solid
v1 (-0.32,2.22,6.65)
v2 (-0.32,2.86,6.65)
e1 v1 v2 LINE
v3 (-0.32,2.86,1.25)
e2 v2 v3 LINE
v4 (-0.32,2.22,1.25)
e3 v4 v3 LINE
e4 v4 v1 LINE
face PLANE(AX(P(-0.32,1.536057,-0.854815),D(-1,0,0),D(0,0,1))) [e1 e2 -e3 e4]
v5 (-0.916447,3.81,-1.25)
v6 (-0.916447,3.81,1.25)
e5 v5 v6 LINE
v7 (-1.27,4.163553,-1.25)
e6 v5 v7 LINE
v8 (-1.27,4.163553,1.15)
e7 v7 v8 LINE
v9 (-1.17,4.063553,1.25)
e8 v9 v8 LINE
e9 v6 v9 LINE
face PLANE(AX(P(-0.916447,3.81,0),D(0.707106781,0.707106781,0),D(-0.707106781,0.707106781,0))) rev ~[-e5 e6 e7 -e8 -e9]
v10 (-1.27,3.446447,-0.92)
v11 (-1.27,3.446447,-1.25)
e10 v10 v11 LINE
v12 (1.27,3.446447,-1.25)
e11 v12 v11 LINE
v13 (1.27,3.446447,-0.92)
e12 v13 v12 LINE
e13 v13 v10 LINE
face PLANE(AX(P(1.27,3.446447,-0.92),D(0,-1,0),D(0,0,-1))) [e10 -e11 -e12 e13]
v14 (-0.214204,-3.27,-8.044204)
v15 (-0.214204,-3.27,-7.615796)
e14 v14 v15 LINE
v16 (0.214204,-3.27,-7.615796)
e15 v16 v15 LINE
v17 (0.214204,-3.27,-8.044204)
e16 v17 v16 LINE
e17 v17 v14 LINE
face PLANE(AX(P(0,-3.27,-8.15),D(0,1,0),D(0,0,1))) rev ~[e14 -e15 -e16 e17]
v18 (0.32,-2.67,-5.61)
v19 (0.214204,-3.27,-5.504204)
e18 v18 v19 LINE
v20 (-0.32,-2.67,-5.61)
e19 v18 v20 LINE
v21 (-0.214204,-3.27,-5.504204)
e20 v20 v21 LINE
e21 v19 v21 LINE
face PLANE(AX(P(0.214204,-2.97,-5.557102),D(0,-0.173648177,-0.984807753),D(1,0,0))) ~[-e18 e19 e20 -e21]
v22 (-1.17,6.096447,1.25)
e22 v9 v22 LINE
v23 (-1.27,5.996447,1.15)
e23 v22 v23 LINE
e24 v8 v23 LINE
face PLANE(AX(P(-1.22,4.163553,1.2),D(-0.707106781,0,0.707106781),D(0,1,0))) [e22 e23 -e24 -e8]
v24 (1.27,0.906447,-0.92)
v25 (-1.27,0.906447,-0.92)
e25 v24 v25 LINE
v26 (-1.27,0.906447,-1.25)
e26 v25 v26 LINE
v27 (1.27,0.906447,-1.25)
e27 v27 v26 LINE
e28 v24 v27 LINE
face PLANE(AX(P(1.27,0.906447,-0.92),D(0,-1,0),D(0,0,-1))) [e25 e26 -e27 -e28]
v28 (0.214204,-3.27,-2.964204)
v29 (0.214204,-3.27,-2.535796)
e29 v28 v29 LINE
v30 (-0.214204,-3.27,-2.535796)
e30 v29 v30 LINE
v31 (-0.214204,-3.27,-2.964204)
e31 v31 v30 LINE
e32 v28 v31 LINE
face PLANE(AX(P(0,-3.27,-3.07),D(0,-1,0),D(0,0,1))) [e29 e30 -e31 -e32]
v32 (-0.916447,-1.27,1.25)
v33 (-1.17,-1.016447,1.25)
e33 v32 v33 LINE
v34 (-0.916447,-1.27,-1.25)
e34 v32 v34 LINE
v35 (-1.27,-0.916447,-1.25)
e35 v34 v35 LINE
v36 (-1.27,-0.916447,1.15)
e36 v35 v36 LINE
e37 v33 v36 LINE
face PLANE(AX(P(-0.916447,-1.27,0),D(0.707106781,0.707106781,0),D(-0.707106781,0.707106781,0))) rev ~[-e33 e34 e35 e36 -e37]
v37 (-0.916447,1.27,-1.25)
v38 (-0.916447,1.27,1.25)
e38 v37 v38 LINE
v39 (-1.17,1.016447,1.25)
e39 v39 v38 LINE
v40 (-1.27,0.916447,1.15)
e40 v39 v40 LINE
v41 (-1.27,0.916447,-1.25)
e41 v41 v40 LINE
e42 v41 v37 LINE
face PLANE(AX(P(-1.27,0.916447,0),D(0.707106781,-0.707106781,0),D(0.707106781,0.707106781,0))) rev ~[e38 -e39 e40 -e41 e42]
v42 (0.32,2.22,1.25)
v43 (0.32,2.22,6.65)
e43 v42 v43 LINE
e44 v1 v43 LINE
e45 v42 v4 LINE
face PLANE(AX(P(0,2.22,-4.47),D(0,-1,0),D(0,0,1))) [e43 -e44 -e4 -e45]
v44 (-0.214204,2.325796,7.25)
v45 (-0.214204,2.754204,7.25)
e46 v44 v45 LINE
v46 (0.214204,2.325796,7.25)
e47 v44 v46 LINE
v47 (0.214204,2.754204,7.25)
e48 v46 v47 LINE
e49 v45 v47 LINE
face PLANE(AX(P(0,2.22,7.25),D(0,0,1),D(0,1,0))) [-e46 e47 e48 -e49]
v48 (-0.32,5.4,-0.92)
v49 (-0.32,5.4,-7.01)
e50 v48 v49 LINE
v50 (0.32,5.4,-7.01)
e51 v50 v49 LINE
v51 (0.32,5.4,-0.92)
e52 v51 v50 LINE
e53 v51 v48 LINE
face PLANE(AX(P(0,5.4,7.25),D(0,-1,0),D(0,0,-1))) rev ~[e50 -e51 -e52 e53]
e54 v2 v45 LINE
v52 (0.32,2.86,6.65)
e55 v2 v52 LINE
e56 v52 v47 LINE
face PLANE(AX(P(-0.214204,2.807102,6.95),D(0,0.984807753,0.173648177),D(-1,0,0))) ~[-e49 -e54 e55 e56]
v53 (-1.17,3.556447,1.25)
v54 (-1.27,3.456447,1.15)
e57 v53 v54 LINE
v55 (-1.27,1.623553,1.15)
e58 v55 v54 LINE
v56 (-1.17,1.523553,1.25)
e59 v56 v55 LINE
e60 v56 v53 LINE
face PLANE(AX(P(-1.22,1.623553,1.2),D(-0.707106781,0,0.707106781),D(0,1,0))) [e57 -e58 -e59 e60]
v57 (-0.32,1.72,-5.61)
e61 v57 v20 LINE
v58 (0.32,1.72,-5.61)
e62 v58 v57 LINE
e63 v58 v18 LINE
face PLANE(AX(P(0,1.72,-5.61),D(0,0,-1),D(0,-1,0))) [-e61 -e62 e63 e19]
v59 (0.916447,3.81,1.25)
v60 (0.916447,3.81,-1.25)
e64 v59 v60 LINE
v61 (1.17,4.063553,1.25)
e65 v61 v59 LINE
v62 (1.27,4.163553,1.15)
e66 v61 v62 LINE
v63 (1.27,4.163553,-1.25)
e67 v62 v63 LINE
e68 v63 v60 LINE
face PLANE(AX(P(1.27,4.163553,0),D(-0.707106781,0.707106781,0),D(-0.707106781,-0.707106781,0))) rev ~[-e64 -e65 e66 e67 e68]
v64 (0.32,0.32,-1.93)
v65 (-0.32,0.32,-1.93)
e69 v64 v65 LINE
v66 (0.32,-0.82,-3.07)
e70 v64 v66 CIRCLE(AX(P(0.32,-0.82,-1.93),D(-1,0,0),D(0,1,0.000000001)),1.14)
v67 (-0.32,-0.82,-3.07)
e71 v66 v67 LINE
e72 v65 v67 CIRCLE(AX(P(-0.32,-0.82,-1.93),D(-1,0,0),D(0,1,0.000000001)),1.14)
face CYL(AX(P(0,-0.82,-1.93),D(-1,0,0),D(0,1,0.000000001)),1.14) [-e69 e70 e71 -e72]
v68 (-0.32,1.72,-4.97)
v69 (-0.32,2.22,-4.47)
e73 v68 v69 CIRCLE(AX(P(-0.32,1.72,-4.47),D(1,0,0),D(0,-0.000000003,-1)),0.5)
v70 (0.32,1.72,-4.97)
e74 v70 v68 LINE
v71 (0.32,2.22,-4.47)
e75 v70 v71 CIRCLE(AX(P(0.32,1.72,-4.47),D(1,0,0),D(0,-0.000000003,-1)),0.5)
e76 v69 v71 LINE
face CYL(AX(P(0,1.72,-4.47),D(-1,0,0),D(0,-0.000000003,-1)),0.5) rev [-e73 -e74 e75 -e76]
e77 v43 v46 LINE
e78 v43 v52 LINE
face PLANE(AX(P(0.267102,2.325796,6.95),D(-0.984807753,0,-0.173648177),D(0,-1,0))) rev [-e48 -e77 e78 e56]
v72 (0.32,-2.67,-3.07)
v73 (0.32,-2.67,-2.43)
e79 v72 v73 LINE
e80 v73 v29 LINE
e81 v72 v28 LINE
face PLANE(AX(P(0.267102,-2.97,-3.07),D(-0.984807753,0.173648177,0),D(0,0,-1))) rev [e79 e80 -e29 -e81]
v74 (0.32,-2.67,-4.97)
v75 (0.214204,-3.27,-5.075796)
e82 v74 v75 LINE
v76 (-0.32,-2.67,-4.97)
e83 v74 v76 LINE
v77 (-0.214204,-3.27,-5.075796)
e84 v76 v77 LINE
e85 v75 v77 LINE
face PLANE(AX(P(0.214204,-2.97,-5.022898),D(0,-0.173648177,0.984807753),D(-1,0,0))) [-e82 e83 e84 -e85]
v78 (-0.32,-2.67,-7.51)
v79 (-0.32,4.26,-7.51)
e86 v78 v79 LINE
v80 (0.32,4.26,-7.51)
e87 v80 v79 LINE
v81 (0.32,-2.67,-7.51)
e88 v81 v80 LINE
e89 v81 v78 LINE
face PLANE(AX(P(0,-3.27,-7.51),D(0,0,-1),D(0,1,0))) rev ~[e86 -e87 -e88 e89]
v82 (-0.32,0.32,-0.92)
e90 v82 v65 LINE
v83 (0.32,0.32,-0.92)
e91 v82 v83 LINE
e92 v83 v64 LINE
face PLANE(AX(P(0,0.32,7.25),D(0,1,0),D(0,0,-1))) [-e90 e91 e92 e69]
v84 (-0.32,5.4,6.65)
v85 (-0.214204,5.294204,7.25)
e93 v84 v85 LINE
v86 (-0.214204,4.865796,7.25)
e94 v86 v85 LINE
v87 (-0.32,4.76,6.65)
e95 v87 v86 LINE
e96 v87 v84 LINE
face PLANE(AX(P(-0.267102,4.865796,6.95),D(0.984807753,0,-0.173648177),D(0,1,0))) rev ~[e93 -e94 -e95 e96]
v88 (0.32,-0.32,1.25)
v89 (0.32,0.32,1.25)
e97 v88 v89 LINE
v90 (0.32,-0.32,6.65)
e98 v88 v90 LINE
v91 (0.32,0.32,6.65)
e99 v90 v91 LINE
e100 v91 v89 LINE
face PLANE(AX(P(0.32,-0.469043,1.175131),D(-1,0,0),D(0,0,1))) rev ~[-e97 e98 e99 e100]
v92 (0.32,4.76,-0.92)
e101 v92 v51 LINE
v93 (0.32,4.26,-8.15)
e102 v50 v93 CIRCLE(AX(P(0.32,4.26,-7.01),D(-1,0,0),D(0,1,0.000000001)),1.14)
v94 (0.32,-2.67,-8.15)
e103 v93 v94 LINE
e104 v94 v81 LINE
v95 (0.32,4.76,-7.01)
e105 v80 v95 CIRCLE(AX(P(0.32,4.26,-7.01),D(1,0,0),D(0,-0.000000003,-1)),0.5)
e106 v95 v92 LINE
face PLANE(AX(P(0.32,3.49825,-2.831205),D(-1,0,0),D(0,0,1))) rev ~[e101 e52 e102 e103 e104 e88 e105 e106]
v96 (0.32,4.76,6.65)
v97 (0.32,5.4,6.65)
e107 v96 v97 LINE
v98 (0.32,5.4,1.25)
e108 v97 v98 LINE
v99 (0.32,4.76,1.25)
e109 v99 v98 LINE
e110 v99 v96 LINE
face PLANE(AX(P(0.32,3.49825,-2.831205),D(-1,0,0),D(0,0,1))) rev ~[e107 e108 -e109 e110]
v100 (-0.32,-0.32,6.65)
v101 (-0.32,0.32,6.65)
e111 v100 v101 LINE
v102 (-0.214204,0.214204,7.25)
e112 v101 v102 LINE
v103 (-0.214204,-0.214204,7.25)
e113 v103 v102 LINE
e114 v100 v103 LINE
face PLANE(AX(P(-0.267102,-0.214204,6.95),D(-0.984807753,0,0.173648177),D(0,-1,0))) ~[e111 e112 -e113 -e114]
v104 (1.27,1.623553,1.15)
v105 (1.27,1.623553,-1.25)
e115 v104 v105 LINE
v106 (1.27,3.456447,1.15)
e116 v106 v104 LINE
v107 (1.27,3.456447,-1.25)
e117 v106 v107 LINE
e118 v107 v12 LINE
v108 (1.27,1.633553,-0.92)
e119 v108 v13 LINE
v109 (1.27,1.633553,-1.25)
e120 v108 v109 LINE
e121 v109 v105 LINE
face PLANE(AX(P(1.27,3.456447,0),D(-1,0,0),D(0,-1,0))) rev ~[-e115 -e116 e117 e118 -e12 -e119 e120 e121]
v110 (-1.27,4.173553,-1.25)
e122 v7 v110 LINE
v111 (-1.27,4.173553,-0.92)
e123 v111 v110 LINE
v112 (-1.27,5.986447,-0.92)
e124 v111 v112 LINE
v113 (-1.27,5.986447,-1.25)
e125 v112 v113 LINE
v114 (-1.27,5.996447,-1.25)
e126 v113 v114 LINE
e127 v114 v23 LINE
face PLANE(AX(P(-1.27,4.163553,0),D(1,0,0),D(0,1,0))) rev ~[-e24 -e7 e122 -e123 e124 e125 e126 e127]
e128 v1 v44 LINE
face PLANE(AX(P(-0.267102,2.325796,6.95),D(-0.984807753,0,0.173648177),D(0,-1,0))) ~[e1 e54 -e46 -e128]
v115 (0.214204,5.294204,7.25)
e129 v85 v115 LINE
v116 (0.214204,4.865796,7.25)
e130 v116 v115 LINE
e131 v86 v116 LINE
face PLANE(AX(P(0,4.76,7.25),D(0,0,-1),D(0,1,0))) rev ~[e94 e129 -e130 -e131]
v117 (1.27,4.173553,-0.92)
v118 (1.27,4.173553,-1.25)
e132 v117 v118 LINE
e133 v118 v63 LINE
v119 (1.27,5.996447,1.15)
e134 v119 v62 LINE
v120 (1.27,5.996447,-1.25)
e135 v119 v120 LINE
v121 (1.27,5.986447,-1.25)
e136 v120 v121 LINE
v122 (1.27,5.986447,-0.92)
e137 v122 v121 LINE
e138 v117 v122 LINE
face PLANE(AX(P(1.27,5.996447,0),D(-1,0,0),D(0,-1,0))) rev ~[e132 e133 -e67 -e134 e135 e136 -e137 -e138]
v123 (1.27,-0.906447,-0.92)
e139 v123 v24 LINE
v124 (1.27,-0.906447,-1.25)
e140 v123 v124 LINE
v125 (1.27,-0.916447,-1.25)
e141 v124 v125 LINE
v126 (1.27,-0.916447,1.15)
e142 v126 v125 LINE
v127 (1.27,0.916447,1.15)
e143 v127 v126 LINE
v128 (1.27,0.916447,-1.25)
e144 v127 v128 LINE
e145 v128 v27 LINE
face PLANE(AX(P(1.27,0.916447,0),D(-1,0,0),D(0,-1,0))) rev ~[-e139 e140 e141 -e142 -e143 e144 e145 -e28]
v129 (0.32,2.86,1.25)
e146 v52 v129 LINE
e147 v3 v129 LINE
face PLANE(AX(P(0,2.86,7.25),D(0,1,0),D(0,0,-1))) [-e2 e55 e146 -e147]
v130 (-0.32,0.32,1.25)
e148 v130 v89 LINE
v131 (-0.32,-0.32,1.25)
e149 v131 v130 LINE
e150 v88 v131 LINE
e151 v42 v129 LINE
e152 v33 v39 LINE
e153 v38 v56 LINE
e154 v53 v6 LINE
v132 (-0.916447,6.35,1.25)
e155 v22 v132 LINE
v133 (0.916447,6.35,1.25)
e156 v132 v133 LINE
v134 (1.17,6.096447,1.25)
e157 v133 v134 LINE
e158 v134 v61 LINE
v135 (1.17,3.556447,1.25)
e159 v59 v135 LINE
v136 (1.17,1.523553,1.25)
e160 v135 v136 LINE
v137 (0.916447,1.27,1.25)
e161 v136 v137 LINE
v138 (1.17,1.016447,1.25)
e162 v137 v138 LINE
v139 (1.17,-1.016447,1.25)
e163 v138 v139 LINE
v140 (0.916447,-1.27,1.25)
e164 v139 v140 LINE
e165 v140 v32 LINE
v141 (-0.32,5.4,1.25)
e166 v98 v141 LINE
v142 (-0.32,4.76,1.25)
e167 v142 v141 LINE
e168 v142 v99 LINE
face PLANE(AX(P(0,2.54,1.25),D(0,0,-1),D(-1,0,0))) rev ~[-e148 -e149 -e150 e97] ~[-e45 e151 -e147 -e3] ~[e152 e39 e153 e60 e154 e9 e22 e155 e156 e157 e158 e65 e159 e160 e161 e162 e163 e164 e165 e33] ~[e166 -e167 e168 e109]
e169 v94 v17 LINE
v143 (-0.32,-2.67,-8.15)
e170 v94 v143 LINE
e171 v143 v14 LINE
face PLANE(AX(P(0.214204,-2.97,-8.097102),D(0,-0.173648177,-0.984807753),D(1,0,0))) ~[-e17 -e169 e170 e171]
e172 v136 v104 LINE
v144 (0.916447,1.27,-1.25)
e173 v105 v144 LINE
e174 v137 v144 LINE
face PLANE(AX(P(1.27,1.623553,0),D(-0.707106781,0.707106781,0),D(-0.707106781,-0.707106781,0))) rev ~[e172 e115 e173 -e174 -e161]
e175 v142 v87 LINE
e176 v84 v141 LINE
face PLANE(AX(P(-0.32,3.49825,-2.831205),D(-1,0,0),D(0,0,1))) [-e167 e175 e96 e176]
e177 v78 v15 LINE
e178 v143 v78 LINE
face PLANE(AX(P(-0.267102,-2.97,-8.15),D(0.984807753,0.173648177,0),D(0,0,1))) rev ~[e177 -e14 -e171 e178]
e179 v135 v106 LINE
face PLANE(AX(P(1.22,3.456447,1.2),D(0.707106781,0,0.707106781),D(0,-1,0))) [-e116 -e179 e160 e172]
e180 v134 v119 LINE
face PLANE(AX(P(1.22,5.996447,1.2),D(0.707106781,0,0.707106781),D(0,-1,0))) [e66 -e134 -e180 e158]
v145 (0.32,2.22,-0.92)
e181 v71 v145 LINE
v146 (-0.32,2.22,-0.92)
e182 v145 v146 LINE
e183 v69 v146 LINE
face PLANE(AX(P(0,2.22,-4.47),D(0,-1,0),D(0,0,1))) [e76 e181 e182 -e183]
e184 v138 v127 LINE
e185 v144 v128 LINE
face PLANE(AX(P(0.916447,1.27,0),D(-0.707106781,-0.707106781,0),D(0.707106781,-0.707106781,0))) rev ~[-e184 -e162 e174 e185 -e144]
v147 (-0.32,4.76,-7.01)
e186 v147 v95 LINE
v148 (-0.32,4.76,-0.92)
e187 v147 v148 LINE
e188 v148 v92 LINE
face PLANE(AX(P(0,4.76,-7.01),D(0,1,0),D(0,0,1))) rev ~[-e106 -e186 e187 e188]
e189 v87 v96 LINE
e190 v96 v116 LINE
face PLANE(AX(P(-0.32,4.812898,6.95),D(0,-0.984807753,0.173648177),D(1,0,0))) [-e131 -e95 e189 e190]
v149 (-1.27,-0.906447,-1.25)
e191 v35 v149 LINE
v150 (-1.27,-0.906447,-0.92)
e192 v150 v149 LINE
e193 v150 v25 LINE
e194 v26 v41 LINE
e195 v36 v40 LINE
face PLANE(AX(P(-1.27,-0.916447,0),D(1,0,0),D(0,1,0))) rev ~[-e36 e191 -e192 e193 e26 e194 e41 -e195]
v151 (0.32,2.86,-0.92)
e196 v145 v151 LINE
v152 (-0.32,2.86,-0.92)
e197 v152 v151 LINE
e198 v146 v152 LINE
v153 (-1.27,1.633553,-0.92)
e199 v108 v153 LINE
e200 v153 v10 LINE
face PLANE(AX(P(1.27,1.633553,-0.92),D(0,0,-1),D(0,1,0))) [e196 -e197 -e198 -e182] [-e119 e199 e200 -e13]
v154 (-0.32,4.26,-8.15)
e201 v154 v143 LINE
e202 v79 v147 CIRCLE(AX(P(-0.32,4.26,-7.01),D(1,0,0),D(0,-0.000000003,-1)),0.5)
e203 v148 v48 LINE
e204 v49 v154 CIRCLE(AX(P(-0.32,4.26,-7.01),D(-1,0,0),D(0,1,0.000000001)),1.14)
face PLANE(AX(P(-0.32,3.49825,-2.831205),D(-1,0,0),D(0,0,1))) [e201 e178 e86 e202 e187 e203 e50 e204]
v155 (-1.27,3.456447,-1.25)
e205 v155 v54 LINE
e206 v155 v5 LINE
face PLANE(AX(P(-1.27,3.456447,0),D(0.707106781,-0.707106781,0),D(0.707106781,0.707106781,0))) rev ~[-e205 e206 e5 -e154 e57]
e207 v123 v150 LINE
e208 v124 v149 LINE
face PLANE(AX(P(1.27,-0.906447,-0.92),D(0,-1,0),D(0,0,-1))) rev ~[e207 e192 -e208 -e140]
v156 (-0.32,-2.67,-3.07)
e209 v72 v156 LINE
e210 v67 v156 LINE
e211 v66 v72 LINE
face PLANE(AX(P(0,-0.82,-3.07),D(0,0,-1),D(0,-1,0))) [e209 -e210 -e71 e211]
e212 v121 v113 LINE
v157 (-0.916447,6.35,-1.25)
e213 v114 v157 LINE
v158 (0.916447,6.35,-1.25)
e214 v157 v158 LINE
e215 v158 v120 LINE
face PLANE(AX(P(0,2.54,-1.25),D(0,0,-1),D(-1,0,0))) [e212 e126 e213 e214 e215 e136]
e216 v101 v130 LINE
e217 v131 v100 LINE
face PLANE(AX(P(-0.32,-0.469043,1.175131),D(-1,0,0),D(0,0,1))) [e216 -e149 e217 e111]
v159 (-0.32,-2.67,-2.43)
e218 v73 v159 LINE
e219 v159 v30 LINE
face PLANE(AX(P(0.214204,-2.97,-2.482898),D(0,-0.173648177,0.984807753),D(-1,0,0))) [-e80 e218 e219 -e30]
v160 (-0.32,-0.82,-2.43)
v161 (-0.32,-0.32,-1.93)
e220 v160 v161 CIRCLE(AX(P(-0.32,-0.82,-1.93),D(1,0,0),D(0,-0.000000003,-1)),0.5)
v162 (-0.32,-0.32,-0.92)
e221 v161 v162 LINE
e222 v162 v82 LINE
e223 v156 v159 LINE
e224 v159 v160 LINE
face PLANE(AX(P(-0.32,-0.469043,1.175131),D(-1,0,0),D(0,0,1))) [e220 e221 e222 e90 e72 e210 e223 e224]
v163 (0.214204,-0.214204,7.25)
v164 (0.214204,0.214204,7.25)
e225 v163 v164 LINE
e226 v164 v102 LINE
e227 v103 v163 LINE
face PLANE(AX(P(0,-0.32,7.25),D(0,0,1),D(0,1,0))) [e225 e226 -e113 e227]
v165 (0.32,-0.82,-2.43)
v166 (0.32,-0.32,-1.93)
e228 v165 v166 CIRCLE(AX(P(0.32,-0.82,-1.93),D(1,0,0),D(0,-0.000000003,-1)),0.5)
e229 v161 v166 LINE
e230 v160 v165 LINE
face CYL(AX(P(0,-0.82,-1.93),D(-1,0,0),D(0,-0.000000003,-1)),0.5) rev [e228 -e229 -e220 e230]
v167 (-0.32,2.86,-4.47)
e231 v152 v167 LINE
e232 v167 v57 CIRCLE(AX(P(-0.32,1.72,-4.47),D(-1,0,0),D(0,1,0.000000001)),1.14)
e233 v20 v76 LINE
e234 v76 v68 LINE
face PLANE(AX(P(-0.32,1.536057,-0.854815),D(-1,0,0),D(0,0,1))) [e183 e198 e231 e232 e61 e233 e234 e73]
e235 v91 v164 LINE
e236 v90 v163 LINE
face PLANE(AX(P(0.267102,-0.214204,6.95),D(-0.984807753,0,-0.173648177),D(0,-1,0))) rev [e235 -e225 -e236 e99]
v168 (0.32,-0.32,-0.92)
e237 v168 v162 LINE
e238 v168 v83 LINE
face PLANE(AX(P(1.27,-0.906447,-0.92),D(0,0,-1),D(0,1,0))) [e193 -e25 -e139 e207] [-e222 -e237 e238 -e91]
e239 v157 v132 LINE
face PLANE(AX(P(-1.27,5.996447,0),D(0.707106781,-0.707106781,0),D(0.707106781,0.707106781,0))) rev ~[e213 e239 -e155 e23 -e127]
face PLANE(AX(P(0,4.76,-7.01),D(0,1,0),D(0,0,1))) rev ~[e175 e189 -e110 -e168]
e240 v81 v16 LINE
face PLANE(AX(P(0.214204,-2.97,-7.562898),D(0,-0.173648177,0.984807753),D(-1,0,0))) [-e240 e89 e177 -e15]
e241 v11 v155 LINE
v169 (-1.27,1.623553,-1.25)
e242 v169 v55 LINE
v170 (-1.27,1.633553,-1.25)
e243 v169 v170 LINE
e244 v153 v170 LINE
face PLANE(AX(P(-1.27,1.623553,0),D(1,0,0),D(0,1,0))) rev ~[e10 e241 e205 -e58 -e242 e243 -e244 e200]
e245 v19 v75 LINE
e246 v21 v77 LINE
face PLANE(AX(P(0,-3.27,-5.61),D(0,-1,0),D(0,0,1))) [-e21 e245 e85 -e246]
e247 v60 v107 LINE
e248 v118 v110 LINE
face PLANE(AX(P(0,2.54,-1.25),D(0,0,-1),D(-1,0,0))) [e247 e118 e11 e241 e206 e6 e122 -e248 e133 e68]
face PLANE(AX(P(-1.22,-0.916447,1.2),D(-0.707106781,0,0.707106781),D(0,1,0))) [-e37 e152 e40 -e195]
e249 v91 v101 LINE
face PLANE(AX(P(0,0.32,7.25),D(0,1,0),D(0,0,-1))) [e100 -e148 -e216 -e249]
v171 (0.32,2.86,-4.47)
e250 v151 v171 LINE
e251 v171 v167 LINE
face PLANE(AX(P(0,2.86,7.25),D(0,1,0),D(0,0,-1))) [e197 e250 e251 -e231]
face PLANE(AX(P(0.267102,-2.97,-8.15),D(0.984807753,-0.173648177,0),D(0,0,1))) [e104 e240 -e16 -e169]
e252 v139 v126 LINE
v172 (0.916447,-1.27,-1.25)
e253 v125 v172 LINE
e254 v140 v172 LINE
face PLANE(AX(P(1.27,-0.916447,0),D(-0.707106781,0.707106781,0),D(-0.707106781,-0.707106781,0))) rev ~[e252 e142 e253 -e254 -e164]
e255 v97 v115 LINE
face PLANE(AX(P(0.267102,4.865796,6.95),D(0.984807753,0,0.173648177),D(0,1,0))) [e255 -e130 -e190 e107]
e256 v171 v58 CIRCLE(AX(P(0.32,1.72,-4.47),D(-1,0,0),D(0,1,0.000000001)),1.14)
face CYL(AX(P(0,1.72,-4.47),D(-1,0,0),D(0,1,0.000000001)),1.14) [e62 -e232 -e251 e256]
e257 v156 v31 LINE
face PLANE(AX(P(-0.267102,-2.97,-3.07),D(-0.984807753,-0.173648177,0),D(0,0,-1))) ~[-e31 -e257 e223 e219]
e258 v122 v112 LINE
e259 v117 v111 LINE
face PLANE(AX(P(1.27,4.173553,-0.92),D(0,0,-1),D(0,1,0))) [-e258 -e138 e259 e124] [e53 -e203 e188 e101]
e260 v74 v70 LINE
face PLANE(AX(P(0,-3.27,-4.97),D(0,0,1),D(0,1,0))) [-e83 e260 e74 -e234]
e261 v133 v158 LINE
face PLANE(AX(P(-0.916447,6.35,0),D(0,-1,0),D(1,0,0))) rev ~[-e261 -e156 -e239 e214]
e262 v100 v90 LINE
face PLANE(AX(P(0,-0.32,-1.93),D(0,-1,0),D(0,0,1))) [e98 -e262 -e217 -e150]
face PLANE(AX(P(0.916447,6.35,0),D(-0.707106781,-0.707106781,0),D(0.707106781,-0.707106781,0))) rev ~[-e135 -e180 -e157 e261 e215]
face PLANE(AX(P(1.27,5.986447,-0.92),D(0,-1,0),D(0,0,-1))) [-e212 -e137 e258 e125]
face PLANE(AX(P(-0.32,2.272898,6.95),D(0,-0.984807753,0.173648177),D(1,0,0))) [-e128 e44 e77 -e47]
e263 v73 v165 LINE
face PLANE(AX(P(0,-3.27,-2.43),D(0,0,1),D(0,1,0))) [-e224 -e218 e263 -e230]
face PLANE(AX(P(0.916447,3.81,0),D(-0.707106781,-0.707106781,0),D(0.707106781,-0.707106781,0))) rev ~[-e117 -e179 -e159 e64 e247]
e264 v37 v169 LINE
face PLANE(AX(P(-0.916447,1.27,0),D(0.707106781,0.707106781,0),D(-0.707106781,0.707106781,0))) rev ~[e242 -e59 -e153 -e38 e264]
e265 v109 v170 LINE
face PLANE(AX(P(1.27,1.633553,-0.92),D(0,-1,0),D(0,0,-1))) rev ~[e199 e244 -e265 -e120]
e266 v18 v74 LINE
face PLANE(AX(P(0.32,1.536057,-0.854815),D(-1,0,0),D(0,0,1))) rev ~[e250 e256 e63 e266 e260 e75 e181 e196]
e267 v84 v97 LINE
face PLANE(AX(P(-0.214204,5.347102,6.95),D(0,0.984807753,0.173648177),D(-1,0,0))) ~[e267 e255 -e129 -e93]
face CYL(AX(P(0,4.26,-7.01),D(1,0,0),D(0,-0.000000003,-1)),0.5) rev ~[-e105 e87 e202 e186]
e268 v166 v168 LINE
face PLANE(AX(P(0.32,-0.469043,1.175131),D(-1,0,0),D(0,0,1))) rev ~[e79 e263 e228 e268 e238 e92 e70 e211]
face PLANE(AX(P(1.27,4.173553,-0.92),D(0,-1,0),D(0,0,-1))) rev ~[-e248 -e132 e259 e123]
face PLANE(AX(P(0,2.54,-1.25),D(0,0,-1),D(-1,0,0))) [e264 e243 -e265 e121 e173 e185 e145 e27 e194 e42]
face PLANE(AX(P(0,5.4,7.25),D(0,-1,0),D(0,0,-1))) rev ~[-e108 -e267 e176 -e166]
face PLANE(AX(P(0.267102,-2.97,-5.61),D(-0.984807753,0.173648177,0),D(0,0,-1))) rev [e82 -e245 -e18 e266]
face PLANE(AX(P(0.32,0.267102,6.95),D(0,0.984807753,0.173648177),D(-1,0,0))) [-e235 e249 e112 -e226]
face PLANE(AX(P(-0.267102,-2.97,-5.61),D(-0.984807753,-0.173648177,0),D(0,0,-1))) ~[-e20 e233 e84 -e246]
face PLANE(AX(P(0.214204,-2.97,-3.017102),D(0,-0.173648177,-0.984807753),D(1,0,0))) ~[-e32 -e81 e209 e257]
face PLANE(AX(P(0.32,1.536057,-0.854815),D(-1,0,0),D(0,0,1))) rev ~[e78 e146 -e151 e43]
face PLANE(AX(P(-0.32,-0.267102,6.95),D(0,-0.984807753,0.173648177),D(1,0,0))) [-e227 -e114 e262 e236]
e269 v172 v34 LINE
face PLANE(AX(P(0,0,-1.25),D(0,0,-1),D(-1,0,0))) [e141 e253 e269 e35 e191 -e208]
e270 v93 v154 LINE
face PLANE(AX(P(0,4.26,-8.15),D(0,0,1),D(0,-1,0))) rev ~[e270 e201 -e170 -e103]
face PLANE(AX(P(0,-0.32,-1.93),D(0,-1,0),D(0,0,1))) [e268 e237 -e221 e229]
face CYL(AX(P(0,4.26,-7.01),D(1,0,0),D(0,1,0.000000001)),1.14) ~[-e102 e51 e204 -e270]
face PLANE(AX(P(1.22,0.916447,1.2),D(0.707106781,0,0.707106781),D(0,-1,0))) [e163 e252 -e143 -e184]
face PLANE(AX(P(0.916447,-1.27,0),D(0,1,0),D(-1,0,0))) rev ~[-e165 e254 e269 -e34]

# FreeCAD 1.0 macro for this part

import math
import FreeCAD as App
import Part
import Sketcher
Q = App.Units.Quantity


def edges_at(feature, points):
    """Names of the edges that pass closest to the given points."""
    edges = feature.Shape.Edges
    near = lambda p: min(range(len(edges)), key=lambda i: edges[i].distToShape(Part.Vertex(*p))[0])
    return sorted({f"Edge{near(p) + 1}" for p in points})

doc = App.newDocument("Part")
params = doc.addObject("Spreadsheet::Sheet", "Params")
for row, (alias, value) in enumerate([
    ("sketch1_length", "0.5 mm"),
    ("pad1_length", "2.5 mm"),
    ("sketch2_height", "0.33 mm"),
    ("chamfer_size", "0.1 mm"),
    ("linearpattern_pitch", "2.54 mm"),
    ("chamfer2_size", "0.1 mm"),
    ("sketch3_radius", "0.5 mm"),
    ("sketch3_radius2", "1.14 mm"),
    ("sketch3_width", "2.45 mm"),
    ("sketch3_width2", "4.99 mm"),
    ("sketch3_width3", "7.53 mm"),
    ("pad2_length", "0.64 mm"),
    ("chamfer3_size", "0.6 mm"),
    ("chamfer3_size2", "0.105796 mm"),
    ("chamfer4_size", "0.6 mm"),
    ("chamfer4_size2", "0.105796 mm"),
    ("chamfer5_size", "0.6 mm"),
    ("chamfer5_size2", "0.105796 mm"),
    ("chamfer6_size", "0.6 mm"),
    ("chamfer6_size2", "0.105796 mm"),
    ("chamfer7_size", "0.6 mm"),
    ("chamfer7_size2", "0.105796 mm"),
    ("chamfer8_size", "0.6 mm"),
    ("chamfer8_size2", "0.105796 mm"),
    ("chamfer9_size", "0.6 mm"),
    ("chamfer9_size2", "0.105796 mm"),
    ("chamfer10_size", "0.6 mm"),
    ("chamfer10_size2", "0.105796 mm"),
    ("chamfer11_size", "0.6 mm"),
    ("chamfer11_size2", "0.105796 mm"),
    ("chamfer12_size", "0.6 mm"),
    ("chamfer12_size2", "0.105796 mm"),
    ("chamfer13_size", "0.6 mm"),
    ("chamfer13_size2", "0.105796 mm"),
    ("chamfer14_size", "0.6 mm"),
    ("chamfer14_size2", "0.105796 mm"),
    ("chamfer15_size", "0.6 mm"),
    ("chamfer15_size2", "0.105796 mm"),
    ("chamfer16_size", "0.6 mm"),
    ("chamfer16_size2", "0.105796 mm"),
    ("chamfer17_size", "0.6 mm"),
    ("chamfer17_size2", "0.105796 mm"),
    ("chamfer18_size", "0.6 mm"),
    ("chamfer18_size2", "0.105796 mm"),
    ("chamfer19_size", "0.6 mm"),
    ("chamfer19_size2", "0.105796 mm"),
    ("chamfer20_size", "0.6 mm"),
    ("chamfer20_size2", "0.105796 mm"),
    ("chamfer21_size", "0.6 mm"),
    ("chamfer21_size2", "0.105796 mm"),
    ("chamfer22_size", "0.6 mm"),
    ("chamfer22_size2", "0.105796 mm"),
    ("chamfer23_size", "0.6 mm"),
    ("chamfer23_size2", "0.105796 mm"),
    ("chamfer24_size", "0.6 mm"),
    ("chamfer24_size2", "0.105796 mm"),
    ("chamfer25_size", "0.6 mm"),
    ("chamfer25_size2", "0.105796 mm"),
    ("chamfer26_size", "0.6 mm"),
    ("chamfer26_size2", "0.105796 mm"),
], start=1):
    params.set(f"A{row}", alias)
    params.set(f"B{row}", "=" + value)
    params.setAlias(f"B{row}", alias)

body = doc.addObject("PartDesign::Body", "Body")

# Sketch on XY plane
sketch1 = doc.addObject("Sketcher::SketchObject", "Sketch")
body.addObject(sketch1)
sketch1.AttachmentSupport = (doc.XY_Plane, [""])
sketch1.MapMode = "FlatFace"
sketch1.addGeometry(Part.LineSegment(App.Vector(0.9, 1.3, 0), App.Vector(-0.9, 1.3, 0)), False)
sketch1.addGeometry(Part.LineSegment(App.Vector(-0.9, 1.3, 0), App.Vector(-1.3, 0.9, 0)), False)
sketch1.addGeometry(Part.LineSegment(App.Vector(-1.3, 0.9, 0), App.Vector(-1.3, -0.9, 0)), False)
sketch1.addGeometry(Part.LineSegment(App.Vector(-1.3, -0.9, 0), App.Vector(-0.9, -1.3, 0)), False)
sketch1.addGeometry(Part.LineSegment(App.Vector(-0.9, -1.3, 0), App.Vector(0.9, -1.3, 0)), False)
sketch1.addGeometry(Part.LineSegment(App.Vector(0.9, -1.3, 0), App.Vector(1.3, -0.9, 0)), False)
sketch1.addGeometry(Part.LineSegment(App.Vector(1.3, -0.9, 0), App.Vector(1.3, 0.9, 0)), False)
sketch1.addGeometry(Part.LineSegment(App.Vector(1.3, 0.9, 0), App.Vector(0.9, 1.3, 0)), False)
sketch1.addConstraint(Sketcher.Constraint("Coincident", 0, 2, 1, 1))
sketch1.addConstraint(Sketcher.Constraint("Coincident", 1, 2, 2, 1))
sketch1.addConstraint(Sketcher.Constraint("Coincident", 2, 2, 3, 1))
sketch1.addConstraint(Sketcher.Constraint("Coincident", 3, 2, 4, 1))
sketch1.addConstraint(Sketcher.Constraint("Coincident", 4, 2, 5, 1))
sketch1.addConstraint(Sketcher.Constraint("Coincident", 5, 2, 6, 1))
sketch1.addConstraint(Sketcher.Constraint("Coincident", 6, 2, 7, 1))
sketch1.addConstraint(Sketcher.Constraint("Coincident", 7, 2, 0, 1))
sketch1.addConstraint(Sketcher.Constraint("Horizontal", 0))
sketch1.addConstraint(Sketcher.Constraint("Vertical", 2))
sketch1.addConstraint(Sketcher.Constraint("Horizontal", 4))
sketch1.addConstraint(Sketcher.Constraint("Vertical", 6))
sketch1.addConstraint(Sketcher.Constraint("Symmetric", 0, 2, 4, 2, -1, 1))
sketch1.addConstraint(Sketcher.Constraint("Symmetric", 1, 2, 5, 2, -1, 1))
sketch1.addConstraint(Sketcher.Constraint("Perpendicular", 1, 3))
sketch1.addConstraint(Sketcher.Constraint("Perpendicular", 5, 7))
sketch1.addConstraint(Sketcher.Constraint("Horizontal", 2, 2, 5, 2))
sketch1.addConstraint(Sketcher.Constraint("Horizontal", 1, 2, 6, 2))
sketch1.addConstraint(Sketcher.Constraint("Vertical", 0, 2, 3, 2))
sketch1.addConstraint(Sketcher.Constraint("Equal", 4, 2))
sketch1.addConstraint(Sketcher.Constraint("Distance", 1, Q("0.5 mm")))
sketch1.addConstraint(Sketcher.Constraint("DistanceY", -1, 1, 0, 2, Q("1.27 mm")))
sketch1.setExpression("Constraints[20]", "Params.sketch1_length")
pad1 = doc.addObject("PartDesign::Pad", "Pad")
body.addObject(pad1)
pad1.Profile = sketch1
pad1.setExpression("Length", "Params.pad1_length")
pad1.Midplane = True

# Sketch on YZ plane
sketch2 = doc.addObject("Sketcher::SketchObject", "Sketch001")
body.addObject(sketch2)
sketch2.AttachmentSupport = (doc.YZ_Plane, [""])
sketch2.MapMode = "FlatFace"
sketch2.AttachmentOffset = App.Placement(App.Vector(0, 0, 1.27), App.Rotation())
sketch2.addGeometry(Part.LineSegment(App.Vector(0.91, -0.92, 0), App.Vector(-0.91, -0.92, 0)), False)
sketch2.addGeometry(Part.LineSegment(App.Vector(-0.91, -0.92, 0), App.Vector(-0.91, -1.25, 0)), False)
sketch2.addGeometry(Part.LineSegment(App.Vector(-0.91, -1.25, 0), App.Vector(0.91, -1.25, 0)), False)
sketch2.addGeometry(Part.LineSegment(App.Vector(0.91, -1.25, 0), App.Vector(0.91, -0.92, 0)), False)
sketch2.addConstraint(Sketcher.Constraint("Coincident", 0, 2, 1, 1))
sketch2.addConstraint(Sketcher.Constraint("Coincident", 1, 2, 2, 1))
sketch2.addConstraint(Sketcher.Constraint("Coincident", 2, 2, 3, 1))
sketch2.addConstraint(Sketcher.Constraint("Coincident", 3, 2, 0, 1))
sketch2.addConstraint(Sketcher.Constraint("Horizontal", 0))
sketch2.addConstraint(Sketcher.Constraint("Vertical", 1))
sketch2.addConstraint(Sketcher.Constraint("Horizontal", 2))
sketch2.addConstraint(Sketcher.Constraint("Vertical", 3))
sketch2.addConstraint(Sketcher.Constraint("DistanceY", 1, 2, 1, 1, Q("0.33 mm")))
sketch2.addConstraint(Sketcher.Constraint("DistanceY", 0, 2, -1, 1, Q("0.92 mm")))
sketch2.addConstraint(Sketcher.Constraint("DistanceX", 0, 2, 0, 1, Q("1.812893 mm")))
sketch2.addConstraint(Sketcher.Constraint("DistanceX", 0, 2, -1, 1, Q("0.906447 mm")))
sketch2.setExpression("Constraints[8]", "Params.sketch2_height")
pocket1 = doc.addObject("PartDesign::Pocket", "Pocket")
body.addObject(pocket1)
pocket1.Profile = sketch2
pocket1.Type = "ThroughAll"
doc.recompute()

chamfer = doc.addObject("PartDesign::Chamfer", "Chamfer")
body.addObject(chamfer)
chamfer.Base = (pocket1, edges_at(pocket1, [(1.27, 0, 1.25), (-1.27, 0, 1.25)]))
chamfer.setExpression("Size", "Params.chamfer_size")
doc.recompute()

linearpattern = doc.addObject("PartDesign::LinearPattern", "LinearPattern")
body.addObject(linearpattern)
linearpattern.Originals = [pad1, pocket1]
linearpattern.Direction = (doc.Y_Axis, [""])
linearpattern.Mode = "offset"
linearpattern.setExpression("Offset", "Params.linearpattern_pitch")
linearpattern.Occurrences = 3
body.Tip = linearpattern
doc.recompute()

chamfer2 = doc.addObject("PartDesign::Chamfer", "Chamfer001")
body.addObject(chamfer2)
chamfer2.Base = (linearpattern, edges_at(linearpattern, [
    (1.27, 2.54, 1.25),
    (-1.27, 2.54, 1.25),
    (1.27, 5.08, 1.25),
    (-1.27, 5.08, 1.25),
]))
chamfer2.setExpression("Size", "Params.chamfer2_size")

# Sketch on YZ plane
sketch3 = doc.addObject("Sketcher::SketchObject", "Sketch002")
body.addObject(sketch3)
sketch3.AttachmentSupport = (doc.YZ_Plane, [""])
sketch3.MapMode = "FlatFace"
sketch3.addGeometry(Part.LineSegment(App.Vector(0.32, 7.25, 0), App.Vector(-0.32, 7.25, 0)), False)
sketch3.addGeometry(Part.LineSegment(App.Vector(-0.32, 7.25, 0), App.Vector(-0.32, -1.93, 0)), False)
sketch3.addGeometry(Part.ArcOfCircle(Part.Circle(App.Vector(-0.82, -1.93, 0), App.Vector(0, 0, 1), 0.5), math.radians(-90), math.radians(0)), False)
sketch3.addGeometry(Part.LineSegment(App.Vector(-0.82, -2.43, 0), App.Vector(-3.27, -2.43, 0)), False)
sketch3.addGeometry(Part.LineSegment(App.Vector(-3.27, -2.43, 0), App.Vector(-3.27, -3.07, 0)), False)
sketch3.addGeometry(Part.LineSegment(App.Vector(-3.27, -3.07, 0), App.Vector(-0.82, -3.07, 0)), False)
sketch3.addGeometry(Part.ArcOfCircle(Part.Circle(App.Vector(-0.82, -1.93, 0), App.Vector(0, 0, 1), 1.14), math.radians(-90), math.radians(0)), False)
sketch3.addGeometry(Part.LineSegment(App.Vector(0.32, -1.93, 0), App.Vector(0.32, 7.25, 0)), False)
sketch3.addGeometry(Part.LineSegment(App.Vector(2.86, -4.47, 0), App.Vector(2.86, 7.25, 0)), False)
sketch3.addGeometry(Part.LineSegment(App.Vector(2.86, 7.25, 0), App.Vector(2.22, 7.25, 0)), False)
sketch3.addGeometry(Part.LineSegment(App.Vector(2.22, 7.25, 0), App.Vector(2.22, -4.47, 0)), False)
sketch3.addGeometry(Part.ArcOfCircle(Part.Circle(App.Vector(1.72, -4.47, 0), App.Vector(0, 0, 1), 0.5), math.radians(-90), math.radians(0)), False)
sketch3.addGeometry(Part.LineSegment(App.Vector(1.72, -4.97, 0), App.Vector(-3.27, -4.97, 0)), False)
sketch3.addGeometry(Part.LineSegment(App.Vector(-3.27, -4.97, 0), App.Vector(-3.27, -5.61, 0)), False)
sketch3.addGeometry(Part.LineSegment(App.Vector(-3.27, -5.61, 0), App.Vector(1.72, -5.61, 0)), False)
sketch3.addGeometry(Part.ArcOfCircle(Part.Circle(App.Vector(1.72, -4.47, 0), App.Vector(0, 0, 1), 1.14), math.radians(-90), math.radians(0)), False)
sketch3.addGeometry(Part.LineSegment(App.Vector(5.4, -7.01, 0), App.Vector(5.4, 7.25, 0)), False)
sketch3.addGeometry(Part.LineSegment(App.Vector(5.4, 7.25, 0), App.Vector(4.76, 7.25, 0)), False)
sketch3.addGeometry(Part.LineSegment(App.Vector(4.76, 7.25, 0), App.Vector(4.76, -7.01, 0)), False)
sketch3.addGeometry(Part.ArcOfCircle(Part.Circle(App.Vector(4.26, -7.01, 0), App.Vector(0, 0, 1), 0.5), math.radians(-90), math.radians(0)), False)
sketch3.addGeometry(Part.LineSegment(App.Vector(4.26, -7.51, 0), App.Vector(-3.27, -7.51, 0)), False)
sketch3.addGeometry(Part.LineSegment(App.Vector(-3.27, -7.51, 0), App.Vector(-3.27, -8.15, 0)), False)
sketch3.addGeometry(Part.LineSegment(App.Vector(-3.27, -8.15, 0), App.Vector(4.26, -8.15, 0)), False)
sketch3.addGeometry(Part.ArcOfCircle(Part.Circle(App.Vector(4.26, -7.01, 0), App.Vector(0, 0, 1), 1.14), math.radians(-90), math.radians(0)), False)
sketch3.addConstraint(Sketcher.Constraint("Coincident", 0, 2, 1, 1))
sketch3.addConstraint(Sketcher.Constraint("Tangent", 1, 2, 2, 2))
sketch3.addConstraint(Sketcher.Constraint("Tangent", 2, 1, 3, 1))
sketch3.addConstraint(Sketcher.Constraint("Coincident", 3, 2, 4, 1))
sketch3.addConstraint(Sketcher.Constraint("Coincident", 4, 2, 5, 1))
sketch3.addConstraint(Sketcher.Constraint("Tangent", 5, 2, 6, 1))
sketch3.addConstraint(Sketcher.Constraint("Tangent", 6, 2, 7, 1))
sketch3.addConstraint(Sketcher.Constraint("Coincident", 7, 2, 0, 1))
sketch3.addConstraint(Sketcher.Constraint("Coincident", 8, 2, 9, 1))
sketch3.addConstraint(Sketcher.Constraint("Coincident", 9, 2, 10, 1))
sketch3.addConstraint(Sketcher.Constraint("Tangent", 10, 2, 11, 2))
sketch3.addConstraint(Sketcher.Constraint("Tangent", 11, 1, 12, 1))
sketch3.addConstraint(Sketcher.Constraint("Coincident", 12, 2, 13, 1))
sketch3.addConstraint(Sketcher.Constraint("Coincident", 13, 2, 14, 1))
sketch3.addConstraint(Sketcher.Constraint("Tangent", 14, 2, 15, 1))
sketch3.addConstraint(Sketcher.Constraint("Tangent", 15, 2, 8, 1))
sketch3.addConstraint(Sketcher.Constraint("Coincident", 16, 2, 17, 1))
sketch3.addConstraint(Sketcher.Constraint("Coincident", 17, 2, 18, 1))
sketch3.addConstraint(Sketcher.Constraint("Tangent", 18, 2, 19, 2))
sketch3.addConstraint(Sketcher.Constraint("Tangent", 19, 1, 20, 1))
sketch3.addConstraint(Sketcher.Constraint("Coincident", 20, 2, 21, 1))
sketch3.addConstraint(Sketcher.Constraint("Coincident", 21, 2, 22, 1))
sketch3.addConstraint(Sketcher.Constraint("Tangent", 22, 2, 23, 1))
sketch3.addConstraint(Sketcher.Constraint("Tangent", 23, 2, 16, 1))
sketch3.addConstraint(Sketcher.Constraint("Horizontal", 0))
sketch3.addConstraint(Sketcher.Constraint("Vertical", 1))
sketch3.addConstraint(Sketcher.Constraint("Horizontal", 3))
sketch3.addConstraint(Sketcher.Constraint("Vertical", 4))
sketch3.addConstraint(Sketcher.Constraint("Horizontal", 5))
sketch3.addConstraint(Sketcher.Constraint("Vertical", 7))
sketch3.addConstraint(Sketcher.Constraint("Vertical", 8))
sketch3.addConstraint(Sketcher.Constraint("Horizontal", 9))
sketch3.addConstraint(Sketcher.Constraint("Vertical", 10))
sketch3.addConstraint(Sketcher.Constraint("Horizontal", 12))
sketch3.addConstraint(Sketcher.Constraint("Vertical", 13))
sketch3.addConstraint(Sketcher.Constraint("Horizontal", 14))
sketch3.addConstraint(Sketcher.Constraint("Vertical", 16))
sketch3.addConstraint(Sketcher.Constraint("Horizontal", 17))
sketch3.addConstraint(Sketcher.Constraint("Vertical", 18))
sketch3.addConstraint(Sketcher.Constraint("Horizontal", 20))
sketch3.addConstraint(Sketcher.Constraint("Vertical", 21))
sketch3.addConstraint(Sketcher.Constraint("Horizontal", 22))
sketch3.addConstraint(Sketcher.Constraint("Coincident", 6, 3, 2, 3))
sketch3.addConstraint(Sketcher.Constraint("Coincident", 15, 3, 11, 3))
sketch3.addConstraint(Sketcher.Constraint("Coincident", 23, 3, 19, 3))
sketch3.addConstraint(Sketcher.Constraint("Equal", 2, 11))
sketch3.addConstraint(Sketcher.Constraint("Equal", 6, 15))
sketch3.addConstraint(Sketcher.Constraint("Equal", 11, 19))
sketch3.addConstraint(Sketcher.Constraint("Equal", 15, 23))
sketch3.addConstraint(Sketcher.Constraint("Horizontal", 7, 2, 8, 2))
sketch3.addConstraint(Sketcher.Constraint("Horizontal", 9, 2, 16, 2))
sketch3.addConstraint(Sketcher.Constraint("Vertical", 4, 2, 12, 2))
sketch3.addConstraint(Sketcher.Constraint("Vertical", 13, 2, 20, 2))
sketch3.addConstraint(Sketcher.Constraint("Radius", 2, Q("0.5 mm")))
sketch3.addConstraint(Sketcher.Constraint("Radius", 6, Q("1.14 mm")))
sketch3.addConstraint(Sketcher.Constraint("DistanceX", 3, 2, 3, 1, Q("2.45 mm")))
sketch3.addConstraint(Sketcher.Constraint("DistanceX", 12, 2, 12, 1, Q("4.99 mm")))
sketch3.addConstraint(Sketcher.Constraint("DistanceX", 20, 2, 20, 1, Q("7.53 mm")))
sketch3.addConstraint(Sketcher.Constraint("DistanceY", 1, 2, 1, 1, Q("9.18 mm")))
sketch3.addConstraint(Sketcher.Constraint("DistanceY", 8, 1, 8, 2, Q("11.72 mm")))
sketch3.addConstraint(Sketcher.Constraint("DistanceY", 16, 1, 16, 2, Q("14.26 mm")))
sketch3.addConstraint(Sketcher.Constraint("DistanceX", -1, 1, 16, 2, Q("5.4 mm")))
sketch3.addConstraint(Sketcher.Constraint("DistanceY", 2, 3, -1, 1, Q("1.93 mm")))
sketch3.setExpression("Constraints[53]", "Params.sketch3_radius")
sketch3.setExpression("Constraints[54]", "Params.sketch3_radius2")
sketch3.setExpression("Constraints[55]", "Params.sketch3_width")
sketch3.setExpression("Constraints[56]", "Params.sketch3_width2")
sketch3.setExpression("Constraints[57]", "Params.sketch3_width3")
pad2 = doc.addObject("PartDesign::Pad", "Pad001")
body.addObject(pad2)
pad2.Profile = sketch3
pad2.setExpression("Length", "Params.pad2_length")
pad2.Midplane = True
doc.recompute()

chamfer3 = doc.addObject("PartDesign::Chamfer", "Chamfer002")
body.addObject(chamfer3)
chamfer3.Base = (pad2, edges_at(pad2, [(0.32, -3.27, -2.75)]))
chamfer3.ChamferType = "Two distances"
chamfer3.setExpression("Size", "Params.chamfer3_size")
chamfer3.setExpression("Size2", "Params.chamfer3_size2")
doc.recompute()

chamfer4 = doc.addObject("PartDesign::Chamfer", "Chamfer003")
body.addObject(chamfer4)
chamfer4.Base = (chamfer3, edges_at(chamfer3, [(0, -0.32, 7.25)]))
chamfer4.ChamferType = "Two distances"
chamfer4.setExpression("Size", "Params.chamfer4_size")
chamfer4.setExpression("Size2", "Params.chamfer4_size2")
doc.recompute()

chamfer5 = doc.addObject("PartDesign::Chamfer", "Chamfer004")
body.addObject(chamfer5)
chamfer5.Base = (chamfer4, edges_at(chamfer4, [(-0.32, -3.27, -2.75)]))
chamfer5.ChamferType = "Two distances"
chamfer5.setExpression("Size", "Params.chamfer5_size")
chamfer5.setExpression("Size2", "Params.chamfer5_size2")
doc.recompute()

chamfer6 = doc.addObject("PartDesign::Chamfer", "Chamfer005")
body.addObject(chamfer6)
chamfer6.Base = (chamfer5, edges_at(chamfer5, [(0, -3.27, -2.43)]))
chamfer6.ChamferType = "Two distances"
chamfer6.setExpression("Size", "Params.chamfer6_size")
chamfer6.setExpression("Size2", "Params.chamfer6_size2")
doc.recompute()

chamfer7 = doc.addObject("PartDesign::Chamfer", "Chamfer006")
body.addObject(chamfer7)
chamfer7.Base = (chamfer6, edges_at(chamfer6, [(0, -3.27, -3.07)]))
chamfer7.ChamferType = "Two distances"
chamfer7.setExpression("Size", "Params.chamfer7_size")
chamfer7.setExpression("Size2", "Params.chamfer7_size2")
chamfer7.FlipDirection = True
doc.recompute()

chamfer8 = doc.addObject("PartDesign::Chamfer", "Chamfer007")
body.addObject(chamfer8)
chamfer8.Base = (chamfer7, edges_at(chamfer7, [(-0.32, 0.053, 7.25)]))
chamfer8.ChamferType = "Two distances"
chamfer8.setExpression("Size", "Params.chamfer8_size")
chamfer8.setExpression("Size2", "Params.chamfer8_size2")
doc.recompute()

chamfer9 = doc.addObject("PartDesign::Chamfer", "Chamfer008")
body.addObject(chamfer9)
chamfer9.Base = (chamfer8, edges_at(chamfer8, [(0.053, 0.32, 7.25)]))
chamfer9.ChamferType = "Two distances"
chamfer9.setExpression("Size", "Params.chamfer9_size")
chamfer9.setExpression("Size2", "Params.chamfer9_size2")
doc.recompute()

chamfer10 = doc.addObject("PartDesign::Chamfer", "Chamfer009")
body.addObject(chamfer10)
chamfer10.Base = (chamfer9, edges_at(chamfer9, [(0.32, 0, 7.25)]))
chamfer10.ChamferType = "Two distances"
chamfer10.setExpression("Size", "Params.chamfer10_size")
chamfer10.setExpression("Size2", "Params.chamfer10_size2")
doc.recompute()

chamfer11 = doc.addObject("PartDesign::Chamfer", "Chamfer010")
body.addObject(chamfer11)
chamfer11.Base = (chamfer10, edges_at(chamfer10, [(0.32, -3.27, -5.29)]))
chamfer11.ChamferType = "Two distances"
chamfer11.setExpression("Size", "Params.chamfer11_size")
chamfer11.setExpression("Size2", "Params.chamfer11_size2")
doc.recompute()

chamfer12 = doc.addObject("PartDesign::Chamfer", "Chamfer011")
body.addObject(chamfer12)
chamfer12.Base = (chamfer11, edges_at(chamfer11, [(0, 2.22, 7.25)]))
chamfer12.ChamferType = "Two distances"
chamfer12.setExpression("Size", "Params.chamfer12_size")
chamfer12.setExpression("Size2", "Params.chamfer12_size2")
doc.recompute()

chamfer13 = doc.addObject("PartDesign::Chamfer", "Chamfer012")
body.addObject(chamfer13)
chamfer13.Base = (chamfer12, edges_at(chamfer12, [(-0.32, -3.27, -5.29)]))
chamfer13.ChamferType = "Two distances"
chamfer13.setExpression("Size", "Params.chamfer13_size")
chamfer13.setExpression("Size2", "Params.chamfer13_size2")
doc.recompute()

chamfer14 = doc.addObject("PartDesign::Chamfer", "Chamfer013")
body.addObject(chamfer14)
chamfer14.Base = (chamfer13, edges_at(chamfer13, [(0, -3.27, -4.97)]))
chamfer14.ChamferType = "Two distances"
chamfer14.setExpression("Size", "Params.chamfer14_size")
chamfer14.setExpression("Size2", "Params.chamfer14_size2")
doc.recompute()

chamfer15 = doc.addObject("PartDesign::Chamfer", "Chamfer014")
body.addObject(chamfer15)
chamfer15.Base = (chamfer14, edges_at(chamfer14, [(0, -3.27, -5.61)]))
chamfer15.ChamferType = "Two distances"
chamfer15.setExpression("Size", "Params.chamfer15_size")
chamfer15.setExpression("Size2", "Params.chamfer15_size2")
chamfer15.FlipDirection = True
doc.recompute()

chamfer16 = doc.addObject("PartDesign::Chamfer", "Chamfer015")
body.addObject(chamfer16)
chamfer16.Base = (chamfer15, edges_at(chamfer15, [(-0.32, 2.593, 7.25)]))
chamfer16.ChamferType = "Two distances"
chamfer16.setExpression("Size", "Params.chamfer16_size")
chamfer16.setExpression("Size2", "Params.chamfer16_size2")
doc.recompute()

chamfer17 = doc.addObject("PartDesign::Chamfer", "Chamfer016")
body.addObject(chamfer17)
chamfer17.Base = (chamfer16, edges_at(chamfer16, [(0.053, 2.86, 7.25)]))
chamfer17.ChamferType = "Two distances"
chamfer17.setExpression("Size", "Params.chamfer17_size")
chamfer17.setExpression("Size2", "Params.chamfer17_size2")
doc.recompute()

chamfer18 = doc.addObject("PartDesign::Chamfer", "Chamfer017")
body.addObject(chamfer18)
chamfer18.Base = (chamfer17, edges_at(chamfer17, [(0.32, 2.54, 7.25)]))
chamfer18.ChamferType = "Two distances"
chamfer18.setExpression("Size", "Params.chamfer18_size")
chamfer18.setExpression("Size2", "Params.chamfer18_size2")
doc.recompute()

chamfer19 = doc.addObject("PartDesign::Chamfer", "Chamfer018")
body.addObject(chamfer19)
chamfer19.Base = (chamfer18, edges_at(chamfer18, [(0.32, -3.27, -7.83)]))
chamfer19.ChamferType = "Two distances"
chamfer19.setExpression("Size", "Params.chamfer19_size")
chamfer19.setExpression("Size2", "Params.chamfer19_size2")
doc.recompute()

chamfer20 = doc.addObject("PartDesign::Chamfer", "Chamfer019")
body.addObject(chamfer20)
chamfer20.Base = (chamfer19, edges_at(chamfer19, [(0, 4.76, 7.25)]))
chamfer20.ChamferType = "Two distances"
chamfer20.setExpression("Size", "Params.chamfer20_size")
chamfer20.setExpression("Size2", "Params.chamfer20_size2")
doc.recompute()

chamfer21 = doc.addObject("PartDesign::Chamfer", "Chamfer020")
body.addObject(chamfer21)
chamfer21.Base = (chamfer20, edges_at(chamfer20, [(-0.32, -3.27, -7.83)]))
chamfer21.ChamferType = "Two distances"
chamfer21.setExpression("Size", "Params.chamfer21_size")
chamfer21.setExpression("Size2", "Params.chamfer21_size2")
doc.recompute()

chamfer22 = doc.addObject("PartDesign::Chamfer", "Chamfer021")
body.addObject(chamfer22)
chamfer22.Base = (chamfer21, edges_at(chamfer21, [(0, -3.27, -7.51)]))
chamfer22.ChamferType = "Two distances"
chamfer22.setExpression("Size", "Params.chamfer22_size")
chamfer22.setExpression("Size2", "Params.chamfer22_size2")
doc.recompute()

chamfer23 = doc.addObject("PartDesign::Chamfer", "Chamfer022")
body.addObject(chamfer23)
chamfer23.Base = (chamfer22, edges_at(chamfer22, [(0, -3.27, -8.15)]))
chamfer23.ChamferType = "Two distances"
chamfer23.setExpression("Size", "Params.chamfer23_size")
chamfer23.setExpression("Size2", "Params.chamfer23_size2")
chamfer23.FlipDirection = True
doc.recompute()

chamfer24 = doc.addObject("PartDesign::Chamfer", "Chamfer023")
body.addObject(chamfer24)
chamfer24.Base = (chamfer23, edges_at(chamfer23, [(-0.32, 5.133, 7.25)]))
chamfer24.ChamferType = "Two distances"
chamfer24.setExpression("Size", "Params.chamfer24_size")
chamfer24.setExpression("Size2", "Params.chamfer24_size2")
doc.recompute()

chamfer25 = doc.addObject("PartDesign::Chamfer", "Chamfer024")
body.addObject(chamfer25)
chamfer25.Base = (chamfer24, edges_at(chamfer24, [(0.053, 5.4, 7.25)]))
chamfer25.ChamferType = "Two distances"
chamfer25.setExpression("Size", "Params.chamfer25_size")
chamfer25.setExpression("Size2", "Params.chamfer25_size2")
doc.recompute()

chamfer26 = doc.addObject("PartDesign::Chamfer", "Chamfer025")
body.addObject(chamfer26)
chamfer26.Base = (chamfer25, edges_at(chamfer25, [(0.32, 5.08, 7.25)]))
chamfer26.ChamferType = "Two distances"
chamfer26.setExpression("Size", "Params.chamfer26_size")
chamfer26.setExpression("Size2", "Params.chamfer26_size2")

doc.recompute()
